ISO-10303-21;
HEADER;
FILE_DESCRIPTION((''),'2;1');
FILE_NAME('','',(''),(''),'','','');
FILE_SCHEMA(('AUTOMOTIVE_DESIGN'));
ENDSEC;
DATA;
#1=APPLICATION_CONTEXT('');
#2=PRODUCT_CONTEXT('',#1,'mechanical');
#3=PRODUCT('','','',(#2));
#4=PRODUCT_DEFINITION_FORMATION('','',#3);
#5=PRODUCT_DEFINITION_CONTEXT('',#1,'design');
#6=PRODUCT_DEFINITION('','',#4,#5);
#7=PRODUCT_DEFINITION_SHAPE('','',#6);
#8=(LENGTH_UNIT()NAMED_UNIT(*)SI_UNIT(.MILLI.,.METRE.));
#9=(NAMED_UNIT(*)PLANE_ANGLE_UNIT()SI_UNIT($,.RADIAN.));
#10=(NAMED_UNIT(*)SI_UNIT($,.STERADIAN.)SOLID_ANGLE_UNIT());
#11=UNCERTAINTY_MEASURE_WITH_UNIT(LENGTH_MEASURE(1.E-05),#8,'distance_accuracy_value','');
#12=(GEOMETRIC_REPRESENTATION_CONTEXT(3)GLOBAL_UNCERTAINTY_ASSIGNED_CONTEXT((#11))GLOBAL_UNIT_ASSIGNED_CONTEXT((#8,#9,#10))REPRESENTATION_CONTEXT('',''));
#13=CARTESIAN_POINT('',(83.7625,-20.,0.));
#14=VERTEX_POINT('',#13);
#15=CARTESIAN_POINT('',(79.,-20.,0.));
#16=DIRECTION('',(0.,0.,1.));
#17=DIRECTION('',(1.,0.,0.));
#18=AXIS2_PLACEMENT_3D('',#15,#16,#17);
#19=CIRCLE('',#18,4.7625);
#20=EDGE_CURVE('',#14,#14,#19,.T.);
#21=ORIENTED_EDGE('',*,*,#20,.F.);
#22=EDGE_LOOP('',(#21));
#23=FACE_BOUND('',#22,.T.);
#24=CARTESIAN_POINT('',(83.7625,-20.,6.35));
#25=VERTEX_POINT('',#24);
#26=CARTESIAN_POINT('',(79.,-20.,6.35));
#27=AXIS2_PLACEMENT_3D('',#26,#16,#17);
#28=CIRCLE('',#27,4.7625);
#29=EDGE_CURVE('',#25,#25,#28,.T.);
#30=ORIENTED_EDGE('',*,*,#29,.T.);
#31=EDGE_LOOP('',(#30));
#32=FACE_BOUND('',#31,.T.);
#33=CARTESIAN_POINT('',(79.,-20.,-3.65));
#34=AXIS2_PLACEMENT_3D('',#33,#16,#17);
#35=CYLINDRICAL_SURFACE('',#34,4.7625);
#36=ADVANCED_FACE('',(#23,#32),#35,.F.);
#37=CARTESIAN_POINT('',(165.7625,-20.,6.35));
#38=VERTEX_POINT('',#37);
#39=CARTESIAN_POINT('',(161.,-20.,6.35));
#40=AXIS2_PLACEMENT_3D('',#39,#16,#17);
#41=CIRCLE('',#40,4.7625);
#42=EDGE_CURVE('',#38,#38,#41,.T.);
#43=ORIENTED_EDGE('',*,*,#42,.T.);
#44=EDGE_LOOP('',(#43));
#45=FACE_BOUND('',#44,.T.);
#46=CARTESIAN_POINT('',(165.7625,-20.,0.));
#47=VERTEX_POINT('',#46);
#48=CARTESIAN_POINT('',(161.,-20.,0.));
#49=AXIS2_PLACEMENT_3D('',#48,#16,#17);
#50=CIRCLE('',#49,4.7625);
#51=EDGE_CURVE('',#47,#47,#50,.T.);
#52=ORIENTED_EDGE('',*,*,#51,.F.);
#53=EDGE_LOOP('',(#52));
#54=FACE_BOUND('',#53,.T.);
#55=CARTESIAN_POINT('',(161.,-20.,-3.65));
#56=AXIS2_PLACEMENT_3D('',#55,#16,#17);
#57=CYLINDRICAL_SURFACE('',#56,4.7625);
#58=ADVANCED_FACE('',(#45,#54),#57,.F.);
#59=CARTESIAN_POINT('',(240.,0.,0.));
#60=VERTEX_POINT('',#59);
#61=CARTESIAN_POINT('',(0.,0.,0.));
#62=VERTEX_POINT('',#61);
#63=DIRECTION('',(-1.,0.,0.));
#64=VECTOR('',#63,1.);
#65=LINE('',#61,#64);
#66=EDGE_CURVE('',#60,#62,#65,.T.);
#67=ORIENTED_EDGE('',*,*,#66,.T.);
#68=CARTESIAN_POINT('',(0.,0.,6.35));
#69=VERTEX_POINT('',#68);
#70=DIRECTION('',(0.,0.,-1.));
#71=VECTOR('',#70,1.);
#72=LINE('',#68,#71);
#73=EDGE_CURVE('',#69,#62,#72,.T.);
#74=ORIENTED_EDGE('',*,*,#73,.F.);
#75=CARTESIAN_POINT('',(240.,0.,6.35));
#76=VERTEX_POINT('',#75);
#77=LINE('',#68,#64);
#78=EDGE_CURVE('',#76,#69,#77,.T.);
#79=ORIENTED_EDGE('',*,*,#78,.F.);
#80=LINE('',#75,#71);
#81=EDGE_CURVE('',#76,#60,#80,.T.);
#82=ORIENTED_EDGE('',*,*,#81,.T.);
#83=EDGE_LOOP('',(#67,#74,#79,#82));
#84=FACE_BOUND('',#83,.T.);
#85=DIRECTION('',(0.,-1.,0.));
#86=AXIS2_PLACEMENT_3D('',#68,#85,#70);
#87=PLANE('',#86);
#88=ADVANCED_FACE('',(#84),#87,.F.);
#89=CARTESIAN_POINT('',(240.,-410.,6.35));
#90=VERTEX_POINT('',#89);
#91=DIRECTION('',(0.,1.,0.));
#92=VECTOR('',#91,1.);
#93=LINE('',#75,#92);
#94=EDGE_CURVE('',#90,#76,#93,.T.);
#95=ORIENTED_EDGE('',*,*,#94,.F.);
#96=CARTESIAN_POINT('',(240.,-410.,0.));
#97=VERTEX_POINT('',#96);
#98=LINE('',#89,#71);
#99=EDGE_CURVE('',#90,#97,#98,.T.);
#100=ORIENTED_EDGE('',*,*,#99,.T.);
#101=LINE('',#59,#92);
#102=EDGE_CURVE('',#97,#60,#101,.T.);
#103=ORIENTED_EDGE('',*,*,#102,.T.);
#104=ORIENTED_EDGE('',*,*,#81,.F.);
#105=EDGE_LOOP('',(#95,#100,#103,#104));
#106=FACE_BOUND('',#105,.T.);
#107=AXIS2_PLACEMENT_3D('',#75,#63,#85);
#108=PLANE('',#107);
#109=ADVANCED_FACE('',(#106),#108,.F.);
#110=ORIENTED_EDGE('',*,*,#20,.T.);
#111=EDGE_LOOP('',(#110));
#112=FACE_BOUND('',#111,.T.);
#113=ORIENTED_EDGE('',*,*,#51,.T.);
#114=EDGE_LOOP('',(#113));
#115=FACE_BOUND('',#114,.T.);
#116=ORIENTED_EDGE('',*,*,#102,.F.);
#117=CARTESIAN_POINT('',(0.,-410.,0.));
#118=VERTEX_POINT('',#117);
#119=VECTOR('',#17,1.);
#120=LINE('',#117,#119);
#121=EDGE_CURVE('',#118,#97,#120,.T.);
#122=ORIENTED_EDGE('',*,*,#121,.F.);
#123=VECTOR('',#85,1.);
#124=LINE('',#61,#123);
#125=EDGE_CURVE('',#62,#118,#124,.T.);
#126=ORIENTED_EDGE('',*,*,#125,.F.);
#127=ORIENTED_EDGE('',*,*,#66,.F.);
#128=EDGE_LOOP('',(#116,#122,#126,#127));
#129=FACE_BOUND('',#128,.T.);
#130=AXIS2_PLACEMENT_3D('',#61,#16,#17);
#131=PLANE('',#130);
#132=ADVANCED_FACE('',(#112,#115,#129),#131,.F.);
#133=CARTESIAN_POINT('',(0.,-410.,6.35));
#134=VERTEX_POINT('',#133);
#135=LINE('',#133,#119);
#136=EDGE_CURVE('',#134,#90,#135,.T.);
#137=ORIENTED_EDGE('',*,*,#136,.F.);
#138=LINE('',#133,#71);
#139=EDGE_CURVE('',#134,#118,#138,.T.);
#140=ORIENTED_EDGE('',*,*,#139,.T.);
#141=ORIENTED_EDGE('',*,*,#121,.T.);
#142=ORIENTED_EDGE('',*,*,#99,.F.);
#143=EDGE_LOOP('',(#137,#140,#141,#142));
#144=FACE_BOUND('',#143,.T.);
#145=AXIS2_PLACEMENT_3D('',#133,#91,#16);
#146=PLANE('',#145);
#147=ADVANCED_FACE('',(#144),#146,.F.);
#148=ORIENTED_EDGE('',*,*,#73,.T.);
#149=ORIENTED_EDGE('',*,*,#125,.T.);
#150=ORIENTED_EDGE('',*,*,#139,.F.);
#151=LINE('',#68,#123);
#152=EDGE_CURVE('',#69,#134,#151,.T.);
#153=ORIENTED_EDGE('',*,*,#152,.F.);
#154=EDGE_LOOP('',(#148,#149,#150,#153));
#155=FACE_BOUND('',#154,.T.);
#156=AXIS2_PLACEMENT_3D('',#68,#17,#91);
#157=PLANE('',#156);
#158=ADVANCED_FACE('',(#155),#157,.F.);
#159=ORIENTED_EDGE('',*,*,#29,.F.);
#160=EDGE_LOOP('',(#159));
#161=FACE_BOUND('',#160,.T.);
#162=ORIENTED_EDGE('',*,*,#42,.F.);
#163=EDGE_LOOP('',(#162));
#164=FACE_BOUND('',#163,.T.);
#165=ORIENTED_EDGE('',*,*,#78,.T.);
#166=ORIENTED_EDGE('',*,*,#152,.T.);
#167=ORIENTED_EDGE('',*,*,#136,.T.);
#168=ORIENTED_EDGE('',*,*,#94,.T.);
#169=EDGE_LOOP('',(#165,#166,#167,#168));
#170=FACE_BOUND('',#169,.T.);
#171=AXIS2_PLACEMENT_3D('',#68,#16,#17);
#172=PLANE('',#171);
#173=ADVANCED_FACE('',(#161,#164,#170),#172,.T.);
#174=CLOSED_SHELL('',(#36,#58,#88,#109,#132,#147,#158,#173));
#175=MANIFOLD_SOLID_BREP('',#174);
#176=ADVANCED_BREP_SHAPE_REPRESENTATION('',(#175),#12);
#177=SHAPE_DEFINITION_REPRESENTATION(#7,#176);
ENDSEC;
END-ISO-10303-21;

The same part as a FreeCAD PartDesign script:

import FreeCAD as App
import Part
import Sketcher
Q = App.Units.Quantity

doc = App.newDocument("Part")
body = doc.addObject("PartDesign::Body", "Body")

# Sketch on XY plane
sketch1 = doc.addObject("Sketcher::SketchObject", "Sketch")
body.addObject(sketch1)
sketch1.AttachmentSupport = (doc.XY_Plane, [""])
sketch1.MapMode = "FlatFace"
sketch1.addGeometry(Part.LineSegment(App.Vector(0, 0, 0), App.Vector(0, -410, 0)), False)
sketch1.addGeometry(Part.LineSegment(App.Vector(0, -410, 0), App.Vector(240, -410, 0)), False)
sketch1.addGeometry(Part.LineSegment(App.Vector(240, -410, 0), App.Vector(240, 0, 0)), False)
sketch1.addGeometry(Part.LineSegment(App.Vector(240, 0, 0), App.Vector(0, 0, 0)), False)
sketch1.addConstraint(Sketcher.Constraint("Coincident", 0, 2, 1, 1))
sketch1.addConstraint(Sketcher.Constraint("Coincident", 1, 2, 2, 1))
sketch1.addConstraint(Sketcher.Constraint("Coincident", 2, 2, 3, 1))
sketch1.addConstraint(Sketcher.Constraint("Coincident", 3, 2, 0, 1))
sketch1.addConstraint(Sketcher.Constraint("Vertical", 0))
sketch1.addConstraint(Sketcher.Constraint("Horizontal", 1))
sketch1.addConstraint(Sketcher.Constraint("Vertical", 2))
sketch1.addConstraint(Sketcher.Constraint("Horizontal", 3))
sketch1.addConstraint(Sketcher.Constraint("Coincident", 3, 2, -1, 1))
sketch1.addConstraint(Sketcher.Constraint("DistanceX", 1, 1, 1, 2, Q("240 mm")))
sketch1.addConstraint(Sketcher.Constraint("DistanceY", 0, 2, 0, 1, Q("410 mm")))
pad1 = doc.addObject("PartDesign::Pad", "Pad")
body.addObject(pad1)
pad1.Profile = sketch1
pad1.Length = 6.35

# Sketch on XY plane
sketch2 = doc.addObject("Sketcher::SketchObject", "Sketch001")
body.addObject(sketch2)
sketch2.AttachmentSupport = (doc.XY_Plane, [""])
sketch2.MapMode = "FlatFace"
sketch2.AttachmentOffset = App.Placement(App.Vector(0, 0, 6.35), App.Rotation())
sketch2.addGeometry(Part.Circle(App.Vector(161, -20, 0), App.Vector(0, 0, 1), 4.8), False)
sketch2.addGeometry(Part.Circle(App.Vector(79, -20, 0), App.Vector(0, 0, 1), 4.8), False)
sketch2.addConstraint(Sketcher.Constraint("Equal", 0, 1))
sketch2.addConstraint(Sketcher.Constraint("Horizontal", 0, 3, 1, 3))
sketch2.addConstraint(Sketcher.Constraint("Diameter", 0, Q("9.525 mm")))
sketch2.addConstraint(Sketcher.Constraint("DistanceX", -1, 1, 0, 3, Q("161 mm")))
sketch2.addConstraint(Sketcher.Constraint("DistanceY", 0, 3, -1, 1, Q("20 mm")))
sketch2.addConstraint(Sketcher.Constraint("DistanceX", -1, 1, 1, 3, Q("79 mm")))
pocket1 = doc.addObject("PartDesign::Pocket", "Pocket")
body.addObject(pocket1)
pocket1.Profile = sketch2
pocket1.Length = 10

doc.recompute()
